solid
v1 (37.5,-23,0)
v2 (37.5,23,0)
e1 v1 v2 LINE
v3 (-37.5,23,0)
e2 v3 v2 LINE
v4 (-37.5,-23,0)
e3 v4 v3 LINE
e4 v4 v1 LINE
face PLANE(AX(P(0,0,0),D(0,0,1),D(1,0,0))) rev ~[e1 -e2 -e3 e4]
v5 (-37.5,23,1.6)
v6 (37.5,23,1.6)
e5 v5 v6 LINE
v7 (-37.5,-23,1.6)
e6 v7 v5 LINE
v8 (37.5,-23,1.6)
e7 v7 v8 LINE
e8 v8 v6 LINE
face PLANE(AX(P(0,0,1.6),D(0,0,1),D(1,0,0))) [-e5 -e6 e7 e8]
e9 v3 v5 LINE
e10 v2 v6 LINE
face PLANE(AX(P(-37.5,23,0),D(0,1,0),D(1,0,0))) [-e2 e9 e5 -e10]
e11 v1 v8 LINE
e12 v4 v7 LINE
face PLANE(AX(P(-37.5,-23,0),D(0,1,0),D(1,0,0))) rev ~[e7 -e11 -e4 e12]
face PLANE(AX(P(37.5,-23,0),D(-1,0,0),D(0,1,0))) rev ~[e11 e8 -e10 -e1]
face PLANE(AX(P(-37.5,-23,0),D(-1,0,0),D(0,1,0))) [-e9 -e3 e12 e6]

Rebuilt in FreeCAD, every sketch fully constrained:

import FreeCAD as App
import Part
import Sketcher
from FreeCAD import Vector


def add_polygon(sketch, points):
    """Adds a closed chain of lines whose ends are joined by coincident constraints."""
    first, n = sketch.GeometryCount, len(points)
    for a, b in zip(points, points[1:] + points[:1]):
        sketch.addGeometry(Part.LineSegment(App.Vector(*a, 0), App.Vector(*b, 0)), False)
    for i in range(n):
        sketch.addConstraint(Sketcher.Constraint("Coincident", first + i, 2, first + (i + 1) % n, 1))

doc = App.newDocument("Part")
body = doc.addObject("PartDesign::Body", "Body")

# Sketch on XY plane
sketch1 = body.newObject("Sketcher::SketchObject", "Sketch")
sketch1.AttachmentSupport = (doc.getObject("XY_Plane"), [""])
sketch1.MapMode = "FlatFace"
add_polygon(sketch1, [(-37.5, 23), (-37.5, -23), (37.5, -23), (37.5, 23)])  # lines 0-3
sketch1.addConstraint([
    Sketcher.Constraint("Vertical", 0),
    Sketcher.Constraint("Horizontal", 1),
    Sketcher.Constraint("Vertical", 2),
    Sketcher.Constraint("Horizontal", 3),
    Sketcher.Constraint("Symmetric", 0, 2, 2, 2, -1, 1),
    Sketcher.Constraint("DistanceX", 1, 1, 1, 2, 75.0),
    Sketcher.Constraint("DistanceY", 0, 2, 0, 1, 46.0),
])
pad1 = body.newObject("PartDesign::Pad", "Pad")
pad1.Profile = sketch1
pad1.Length = 1.6

doc.recompute()
